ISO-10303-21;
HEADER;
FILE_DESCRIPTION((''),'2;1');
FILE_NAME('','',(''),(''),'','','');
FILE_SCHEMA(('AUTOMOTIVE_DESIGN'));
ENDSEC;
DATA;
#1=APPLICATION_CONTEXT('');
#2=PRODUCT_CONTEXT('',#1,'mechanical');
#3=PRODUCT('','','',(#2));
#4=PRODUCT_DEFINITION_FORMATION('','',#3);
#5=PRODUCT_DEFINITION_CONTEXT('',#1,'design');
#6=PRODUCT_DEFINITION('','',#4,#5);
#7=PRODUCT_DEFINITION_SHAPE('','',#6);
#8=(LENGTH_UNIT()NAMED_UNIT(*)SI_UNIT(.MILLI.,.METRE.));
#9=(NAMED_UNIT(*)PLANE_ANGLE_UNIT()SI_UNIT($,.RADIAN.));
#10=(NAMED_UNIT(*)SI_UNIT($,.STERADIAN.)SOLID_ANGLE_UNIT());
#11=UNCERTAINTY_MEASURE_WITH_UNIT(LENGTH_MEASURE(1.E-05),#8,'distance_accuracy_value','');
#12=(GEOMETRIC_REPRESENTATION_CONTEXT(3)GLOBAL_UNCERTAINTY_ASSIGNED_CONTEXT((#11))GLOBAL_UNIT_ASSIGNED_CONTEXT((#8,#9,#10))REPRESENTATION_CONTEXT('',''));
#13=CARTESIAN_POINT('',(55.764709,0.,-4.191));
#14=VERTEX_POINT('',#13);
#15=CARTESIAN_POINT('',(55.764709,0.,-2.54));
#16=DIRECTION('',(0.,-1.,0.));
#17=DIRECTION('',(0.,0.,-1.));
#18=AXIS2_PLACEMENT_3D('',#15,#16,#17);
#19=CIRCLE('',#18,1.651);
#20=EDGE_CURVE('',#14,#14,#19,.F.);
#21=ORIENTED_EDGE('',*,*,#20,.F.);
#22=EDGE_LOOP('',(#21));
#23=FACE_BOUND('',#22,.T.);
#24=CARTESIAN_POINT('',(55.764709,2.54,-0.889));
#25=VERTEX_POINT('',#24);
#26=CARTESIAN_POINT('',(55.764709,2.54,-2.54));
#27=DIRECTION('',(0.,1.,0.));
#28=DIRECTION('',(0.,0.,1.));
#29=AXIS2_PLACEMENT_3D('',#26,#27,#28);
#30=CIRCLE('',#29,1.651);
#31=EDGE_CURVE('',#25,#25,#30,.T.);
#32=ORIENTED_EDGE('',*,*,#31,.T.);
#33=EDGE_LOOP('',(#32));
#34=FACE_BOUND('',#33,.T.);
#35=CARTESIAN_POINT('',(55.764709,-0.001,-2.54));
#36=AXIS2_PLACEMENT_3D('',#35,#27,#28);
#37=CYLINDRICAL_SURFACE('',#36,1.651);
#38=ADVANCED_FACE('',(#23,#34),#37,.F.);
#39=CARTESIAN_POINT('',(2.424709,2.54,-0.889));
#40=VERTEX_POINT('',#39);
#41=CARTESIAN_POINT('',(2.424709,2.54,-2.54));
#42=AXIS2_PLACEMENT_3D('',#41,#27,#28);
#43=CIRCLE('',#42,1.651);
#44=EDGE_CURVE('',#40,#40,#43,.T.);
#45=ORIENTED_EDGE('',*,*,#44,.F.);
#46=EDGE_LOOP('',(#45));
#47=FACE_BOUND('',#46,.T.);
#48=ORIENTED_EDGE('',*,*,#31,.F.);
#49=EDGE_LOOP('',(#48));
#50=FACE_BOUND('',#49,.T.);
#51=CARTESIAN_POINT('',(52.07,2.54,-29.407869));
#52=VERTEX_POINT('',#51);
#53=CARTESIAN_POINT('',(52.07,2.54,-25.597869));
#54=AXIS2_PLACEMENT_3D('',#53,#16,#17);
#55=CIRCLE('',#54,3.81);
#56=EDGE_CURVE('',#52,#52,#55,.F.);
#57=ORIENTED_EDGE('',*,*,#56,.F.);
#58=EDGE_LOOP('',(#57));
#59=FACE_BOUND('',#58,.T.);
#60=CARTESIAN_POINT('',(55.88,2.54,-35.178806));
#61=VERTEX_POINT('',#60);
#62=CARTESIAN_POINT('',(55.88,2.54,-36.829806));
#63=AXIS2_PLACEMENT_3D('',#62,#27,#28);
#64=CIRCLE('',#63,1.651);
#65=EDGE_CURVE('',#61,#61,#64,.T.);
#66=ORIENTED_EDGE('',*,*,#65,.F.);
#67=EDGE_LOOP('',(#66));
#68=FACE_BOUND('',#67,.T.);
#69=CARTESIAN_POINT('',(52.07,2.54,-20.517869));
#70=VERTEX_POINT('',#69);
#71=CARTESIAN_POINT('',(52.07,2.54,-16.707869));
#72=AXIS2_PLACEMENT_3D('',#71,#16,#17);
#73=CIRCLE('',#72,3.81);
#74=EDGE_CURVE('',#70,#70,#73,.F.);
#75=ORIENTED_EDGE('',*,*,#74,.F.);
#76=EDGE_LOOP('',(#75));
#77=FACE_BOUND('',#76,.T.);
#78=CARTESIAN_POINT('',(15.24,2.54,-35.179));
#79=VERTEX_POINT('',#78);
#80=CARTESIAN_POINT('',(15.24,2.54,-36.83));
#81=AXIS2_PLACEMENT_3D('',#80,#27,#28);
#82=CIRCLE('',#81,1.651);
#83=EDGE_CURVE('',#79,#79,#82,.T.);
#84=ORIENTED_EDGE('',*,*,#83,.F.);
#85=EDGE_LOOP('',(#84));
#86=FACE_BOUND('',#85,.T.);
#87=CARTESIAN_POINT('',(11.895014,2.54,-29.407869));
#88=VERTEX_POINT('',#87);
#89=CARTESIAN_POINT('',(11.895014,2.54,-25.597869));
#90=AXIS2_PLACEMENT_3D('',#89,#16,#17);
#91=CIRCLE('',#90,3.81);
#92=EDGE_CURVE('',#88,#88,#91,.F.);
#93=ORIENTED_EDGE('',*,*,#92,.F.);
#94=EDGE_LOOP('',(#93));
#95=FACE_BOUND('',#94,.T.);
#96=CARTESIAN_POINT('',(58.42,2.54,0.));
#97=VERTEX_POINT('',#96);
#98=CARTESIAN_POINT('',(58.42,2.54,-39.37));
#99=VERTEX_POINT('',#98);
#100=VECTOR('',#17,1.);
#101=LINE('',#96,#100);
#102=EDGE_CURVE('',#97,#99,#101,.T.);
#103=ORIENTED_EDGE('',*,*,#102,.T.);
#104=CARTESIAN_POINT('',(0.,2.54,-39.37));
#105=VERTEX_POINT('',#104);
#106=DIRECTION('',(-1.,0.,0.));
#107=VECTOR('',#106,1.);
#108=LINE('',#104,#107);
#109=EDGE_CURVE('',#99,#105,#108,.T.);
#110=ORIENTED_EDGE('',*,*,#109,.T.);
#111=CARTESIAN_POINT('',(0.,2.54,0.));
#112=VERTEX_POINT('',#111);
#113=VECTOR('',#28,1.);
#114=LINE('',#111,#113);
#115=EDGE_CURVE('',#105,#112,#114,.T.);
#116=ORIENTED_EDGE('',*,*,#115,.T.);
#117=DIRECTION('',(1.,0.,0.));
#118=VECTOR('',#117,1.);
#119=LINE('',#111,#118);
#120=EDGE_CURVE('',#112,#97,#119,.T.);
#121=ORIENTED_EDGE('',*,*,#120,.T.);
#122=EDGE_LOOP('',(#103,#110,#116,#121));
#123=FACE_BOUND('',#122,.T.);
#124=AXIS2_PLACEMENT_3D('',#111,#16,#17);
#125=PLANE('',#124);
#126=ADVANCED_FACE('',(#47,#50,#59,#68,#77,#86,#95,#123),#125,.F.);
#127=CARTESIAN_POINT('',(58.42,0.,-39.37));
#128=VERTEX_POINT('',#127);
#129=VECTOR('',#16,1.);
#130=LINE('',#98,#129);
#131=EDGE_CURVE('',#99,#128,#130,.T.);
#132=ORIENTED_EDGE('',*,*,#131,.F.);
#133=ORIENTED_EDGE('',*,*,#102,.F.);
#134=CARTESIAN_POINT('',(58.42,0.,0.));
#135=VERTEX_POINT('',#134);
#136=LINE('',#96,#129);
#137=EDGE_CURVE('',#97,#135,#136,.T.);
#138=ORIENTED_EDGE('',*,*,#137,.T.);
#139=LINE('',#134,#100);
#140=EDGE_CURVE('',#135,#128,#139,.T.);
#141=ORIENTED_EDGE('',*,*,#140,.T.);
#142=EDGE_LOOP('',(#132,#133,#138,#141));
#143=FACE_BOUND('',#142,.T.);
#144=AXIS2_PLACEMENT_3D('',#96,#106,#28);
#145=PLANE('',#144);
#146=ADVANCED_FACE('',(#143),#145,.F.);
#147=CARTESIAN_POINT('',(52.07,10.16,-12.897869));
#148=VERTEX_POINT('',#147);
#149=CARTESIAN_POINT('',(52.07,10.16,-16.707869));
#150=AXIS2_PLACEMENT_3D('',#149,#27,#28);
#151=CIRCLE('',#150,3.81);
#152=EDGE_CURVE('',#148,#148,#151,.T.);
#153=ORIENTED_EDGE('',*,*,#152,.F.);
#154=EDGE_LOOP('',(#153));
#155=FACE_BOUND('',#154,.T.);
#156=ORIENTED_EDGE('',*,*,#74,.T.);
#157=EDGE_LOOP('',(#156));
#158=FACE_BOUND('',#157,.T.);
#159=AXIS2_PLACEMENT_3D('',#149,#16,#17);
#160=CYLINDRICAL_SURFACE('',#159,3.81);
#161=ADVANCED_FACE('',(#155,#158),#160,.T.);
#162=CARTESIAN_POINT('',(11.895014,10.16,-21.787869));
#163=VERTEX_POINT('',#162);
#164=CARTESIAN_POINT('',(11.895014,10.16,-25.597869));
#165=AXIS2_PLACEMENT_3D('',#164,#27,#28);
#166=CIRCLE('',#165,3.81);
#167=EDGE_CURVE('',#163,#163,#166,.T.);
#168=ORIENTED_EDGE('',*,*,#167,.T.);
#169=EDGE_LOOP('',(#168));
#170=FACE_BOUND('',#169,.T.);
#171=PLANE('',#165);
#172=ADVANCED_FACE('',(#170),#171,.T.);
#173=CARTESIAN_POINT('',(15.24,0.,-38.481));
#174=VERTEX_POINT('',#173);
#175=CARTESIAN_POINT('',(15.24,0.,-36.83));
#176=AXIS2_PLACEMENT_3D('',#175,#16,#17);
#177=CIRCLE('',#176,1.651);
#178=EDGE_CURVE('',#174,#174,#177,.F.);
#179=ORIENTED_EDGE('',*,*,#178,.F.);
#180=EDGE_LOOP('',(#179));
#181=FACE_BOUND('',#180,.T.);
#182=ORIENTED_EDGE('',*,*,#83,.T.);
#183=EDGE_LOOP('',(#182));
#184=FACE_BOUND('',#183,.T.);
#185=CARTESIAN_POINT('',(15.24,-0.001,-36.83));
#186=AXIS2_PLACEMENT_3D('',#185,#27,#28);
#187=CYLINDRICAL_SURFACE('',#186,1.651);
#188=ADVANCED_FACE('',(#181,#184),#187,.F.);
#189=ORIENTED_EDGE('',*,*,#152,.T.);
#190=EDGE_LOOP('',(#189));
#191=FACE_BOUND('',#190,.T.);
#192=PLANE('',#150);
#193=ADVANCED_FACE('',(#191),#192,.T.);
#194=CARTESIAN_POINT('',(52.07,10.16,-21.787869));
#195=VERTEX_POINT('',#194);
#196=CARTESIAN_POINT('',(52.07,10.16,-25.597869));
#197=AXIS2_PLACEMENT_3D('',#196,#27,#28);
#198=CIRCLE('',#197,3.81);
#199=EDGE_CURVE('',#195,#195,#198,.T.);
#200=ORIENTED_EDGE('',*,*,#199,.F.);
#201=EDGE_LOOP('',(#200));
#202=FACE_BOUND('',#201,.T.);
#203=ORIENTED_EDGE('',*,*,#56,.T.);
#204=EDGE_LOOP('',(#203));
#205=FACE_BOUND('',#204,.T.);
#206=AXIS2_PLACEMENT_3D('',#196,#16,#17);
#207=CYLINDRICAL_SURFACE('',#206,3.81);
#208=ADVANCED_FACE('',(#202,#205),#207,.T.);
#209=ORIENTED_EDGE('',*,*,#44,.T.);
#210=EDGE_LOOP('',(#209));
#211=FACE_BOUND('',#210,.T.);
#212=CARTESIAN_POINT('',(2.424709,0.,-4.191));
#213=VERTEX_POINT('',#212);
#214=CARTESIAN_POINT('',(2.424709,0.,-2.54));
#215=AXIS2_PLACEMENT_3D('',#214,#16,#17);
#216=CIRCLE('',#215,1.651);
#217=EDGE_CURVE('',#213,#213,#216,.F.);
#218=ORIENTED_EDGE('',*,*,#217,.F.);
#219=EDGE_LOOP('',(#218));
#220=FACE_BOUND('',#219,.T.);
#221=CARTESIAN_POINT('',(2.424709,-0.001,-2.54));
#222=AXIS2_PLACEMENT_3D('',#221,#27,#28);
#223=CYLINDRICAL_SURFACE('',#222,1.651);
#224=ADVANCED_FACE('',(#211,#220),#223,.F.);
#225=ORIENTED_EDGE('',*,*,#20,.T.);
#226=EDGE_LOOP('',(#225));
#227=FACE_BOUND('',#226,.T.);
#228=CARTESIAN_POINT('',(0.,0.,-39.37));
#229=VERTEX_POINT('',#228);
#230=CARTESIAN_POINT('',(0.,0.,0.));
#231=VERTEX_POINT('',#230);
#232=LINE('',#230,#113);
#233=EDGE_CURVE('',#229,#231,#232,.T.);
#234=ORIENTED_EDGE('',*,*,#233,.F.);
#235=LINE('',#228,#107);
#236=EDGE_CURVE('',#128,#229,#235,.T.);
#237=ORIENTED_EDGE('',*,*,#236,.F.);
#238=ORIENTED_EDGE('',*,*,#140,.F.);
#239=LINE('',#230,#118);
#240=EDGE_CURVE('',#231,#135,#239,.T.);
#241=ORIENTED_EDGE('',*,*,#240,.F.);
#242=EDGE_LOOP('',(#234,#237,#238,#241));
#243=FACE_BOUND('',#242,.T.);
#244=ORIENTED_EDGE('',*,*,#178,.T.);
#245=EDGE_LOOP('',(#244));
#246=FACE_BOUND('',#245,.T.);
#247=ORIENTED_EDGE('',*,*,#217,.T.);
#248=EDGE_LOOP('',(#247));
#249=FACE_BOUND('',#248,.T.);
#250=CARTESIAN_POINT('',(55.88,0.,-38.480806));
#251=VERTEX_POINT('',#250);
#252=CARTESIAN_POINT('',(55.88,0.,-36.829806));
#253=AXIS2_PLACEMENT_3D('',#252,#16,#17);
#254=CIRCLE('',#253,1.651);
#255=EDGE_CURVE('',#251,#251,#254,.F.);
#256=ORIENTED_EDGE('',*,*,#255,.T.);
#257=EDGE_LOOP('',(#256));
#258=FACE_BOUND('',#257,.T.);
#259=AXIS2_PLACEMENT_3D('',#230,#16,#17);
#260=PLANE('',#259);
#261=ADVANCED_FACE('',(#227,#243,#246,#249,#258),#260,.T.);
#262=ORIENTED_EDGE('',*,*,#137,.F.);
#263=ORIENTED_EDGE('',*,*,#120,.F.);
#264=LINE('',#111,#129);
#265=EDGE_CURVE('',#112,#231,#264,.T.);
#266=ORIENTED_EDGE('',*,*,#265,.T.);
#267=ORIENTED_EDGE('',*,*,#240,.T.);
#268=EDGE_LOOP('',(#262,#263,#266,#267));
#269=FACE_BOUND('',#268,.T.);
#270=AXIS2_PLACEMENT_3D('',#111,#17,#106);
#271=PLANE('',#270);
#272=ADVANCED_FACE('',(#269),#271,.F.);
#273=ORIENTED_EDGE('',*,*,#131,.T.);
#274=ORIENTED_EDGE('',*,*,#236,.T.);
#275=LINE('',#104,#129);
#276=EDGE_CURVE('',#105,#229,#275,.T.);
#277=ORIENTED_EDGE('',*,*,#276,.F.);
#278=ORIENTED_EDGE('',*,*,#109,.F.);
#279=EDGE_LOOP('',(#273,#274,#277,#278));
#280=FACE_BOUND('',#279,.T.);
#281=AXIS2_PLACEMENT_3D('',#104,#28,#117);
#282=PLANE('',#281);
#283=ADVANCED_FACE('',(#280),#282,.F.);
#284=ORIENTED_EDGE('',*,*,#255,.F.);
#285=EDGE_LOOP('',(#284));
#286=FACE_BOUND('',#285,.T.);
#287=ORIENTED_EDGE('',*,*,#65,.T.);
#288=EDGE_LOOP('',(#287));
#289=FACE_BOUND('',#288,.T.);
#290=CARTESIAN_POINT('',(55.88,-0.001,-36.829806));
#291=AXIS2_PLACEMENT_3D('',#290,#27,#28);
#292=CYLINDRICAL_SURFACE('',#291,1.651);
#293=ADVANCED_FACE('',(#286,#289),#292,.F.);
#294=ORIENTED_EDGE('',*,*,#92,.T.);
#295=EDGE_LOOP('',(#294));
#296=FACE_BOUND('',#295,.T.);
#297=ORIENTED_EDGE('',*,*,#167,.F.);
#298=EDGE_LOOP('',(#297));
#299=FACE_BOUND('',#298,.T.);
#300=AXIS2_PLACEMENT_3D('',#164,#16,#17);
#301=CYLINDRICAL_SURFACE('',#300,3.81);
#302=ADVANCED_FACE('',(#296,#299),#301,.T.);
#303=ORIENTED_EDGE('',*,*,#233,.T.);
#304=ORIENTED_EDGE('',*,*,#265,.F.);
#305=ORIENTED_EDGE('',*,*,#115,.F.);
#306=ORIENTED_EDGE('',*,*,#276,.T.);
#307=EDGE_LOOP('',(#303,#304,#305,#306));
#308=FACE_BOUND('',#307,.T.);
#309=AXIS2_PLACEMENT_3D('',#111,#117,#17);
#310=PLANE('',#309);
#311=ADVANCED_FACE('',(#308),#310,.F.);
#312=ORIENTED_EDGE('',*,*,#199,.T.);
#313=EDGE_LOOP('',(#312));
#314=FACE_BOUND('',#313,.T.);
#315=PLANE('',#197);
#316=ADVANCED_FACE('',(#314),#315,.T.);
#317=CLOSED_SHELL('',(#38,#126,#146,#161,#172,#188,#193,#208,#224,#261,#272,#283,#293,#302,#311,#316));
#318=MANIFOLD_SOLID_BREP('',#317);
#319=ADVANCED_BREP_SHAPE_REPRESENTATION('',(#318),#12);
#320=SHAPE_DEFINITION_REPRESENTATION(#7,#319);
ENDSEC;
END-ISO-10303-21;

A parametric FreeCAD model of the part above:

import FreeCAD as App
import Part
import Sketcher
from FreeCAD import Vector
Q = App.Units.Quantity


def add_polygon(sketch, points):
    """Adds a closed chain of lines whose ends are joined by coincident constraints."""
    first, n = sketch.GeometryCount, len(points)
    for a, b in zip(points, points[1:] + points[:1]):
        sketch.addGeometry(Part.LineSegment(App.Vector(*a, 0), App.Vector(*b, 0)), False)
    for i in range(n):
        sketch.addConstraint(Sketcher.Constraint("Coincident", first + i, 2, first + (i + 1) % n, 1))

doc = App.newDocument("Part")
body = doc.addObject("PartDesign::Body", "Body")

# Sketch on XZ plane
sketch1 = body.newObject("Sketcher::SketchObject", "Sketch")
sketch1.AttachmentSupport = (doc.getObject("XZ_Plane"), [""])
sketch1.MapMode = "FlatFace"
add_polygon(sketch1, [(0, -39.37), (0, 0), (58.42, 0), (58.42, -39.37)])  # lines 0-3
sketch1.addConstraint(Sketcher.Constraint("Vertical", 0))
sketch1.addConstraint(Sketcher.Constraint("Horizontal", 1))
sketch1.addConstraint(Sketcher.Constraint("Vertical", 2))
sketch1.addConstraint(Sketcher.Constraint("Horizontal", 3))
sketch1.addConstraint(Sketcher.Constraint("Coincident", 0, 2, -1, 1))
sketch1.addConstraint(Sketcher.Constraint("DistanceX", 1, 1, 1, 2, Q("2.3 in")))
sketch1.addConstraint(Sketcher.Constraint("DistanceY", 0, 1, 0, 2, Q("1.55 in")))
pad1 = body.newObject("PartDesign::Pad", "Pad")
pad1.Profile = sketch1
pad1.Length = Q("0.1 in")
pad1.Reversed = True

# Sketch on XZ plane
sketch2 = body.newObject("Sketcher::SketchObject", "Sketch001")
sketch2.AttachmentSupport = (doc.getObject("XZ_Plane"), [""])
sketch2.MapMode = "FlatFace"
sketch2.AttachmentOffset = App.Placement(Vector(0, 0, -0.1 * 25.4), App.Rotation())
sketch2.addGeometry(Part.Circle(Vector(2.424709, -2.54, 0), Vector(0, 0, 1), 1.651), False)
sketch2.addConstraint(Sketcher.Constraint("Diameter", 0, Q("0.13 in")))
sketch2.addConstraint(Sketcher.Constraint("DistanceY", 0, 3, -1, 1, Q("0.1 in")))
sketch2.addConstraint(Sketcher.Constraint("DistanceX", -1, 1, 0, 3, 2.424709))
pocket1 = body.newObject("PartDesign::Pocket", "Pocket")
pocket1.Profile = sketch2
pocket1.Type = "UpToFirst"
pocket1.Reversed = True

# Sketch on XZ plane
sketch3 = body.newObject("Sketcher::SketchObject", "Sketch002")
sketch3.AttachmentSupport = (doc.getObject("XZ_Plane"), [""])
sketch3.MapMode = "FlatFace"
sketch3.AttachmentOffset = App.Placement(Vector(0, 0, -0.1 * 25.4), App.Rotation())
sketch3.addGeometry(Part.Circle(Vector(55.764709, -2.54, 0), Vector(0, 0, 1), 1.651), False)
sketch3.addConstraint(Sketcher.Constraint("Diameter", 0, Q("0.13 in")))
sketch3.addConstraint(Sketcher.Constraint("DistanceY", 0, 3, -1, 1, Q("0.1 in")))
sketch3.addConstraint(Sketcher.Constraint("DistanceX", -1, 1, 0, 3, 55.764709))
pocket2 = body.newObject("PartDesign::Pocket", "Pocket001")
pocket2.Profile = sketch3
pocket2.Type = "UpToFirst"
pocket2.Reversed = True

# Sketch on XZ plane
sketch4 = body.newObject("Sketcher::SketchObject", "Sketch003")
sketch4.AttachmentSupport = (doc.getObject("XZ_Plane"), [""])
sketch4.MapMode = "FlatFace"
sketch4.AttachmentOffset = App.Placement(Vector(0, 0, -0.1 * 25.4), App.Rotation())
sketch4.addGeometry(Part.Circle(Vector(15.24, -36.83, 0), Vector(0, 0, 1), 1.651), False)
sketch4.addConstraint(Sketcher.Constraint("Diameter", 0, Q("0.13 in")))
sketch4.addConstraint(Sketcher.Constraint("DistanceX", -1, 1, 0, 3, Q("0.6 in")))
sketch4.addConstraint(Sketcher.Constraint("DistanceY", 0, 3, -1, 1, Q("1.45 in")))
pocket3 = body.newObject("PartDesign::Pocket", "Pocket002")
pocket3.Profile = sketch4
pocket3.Type = "UpToFirst"
pocket3.Reversed = True

# Sketch on XZ plane
sketch5 = body.newObject("Sketcher::SketchObject", "Sketch004")
sketch5.AttachmentSupport = (doc.getObject("XZ_Plane"), [""])
sketch5.MapMode = "FlatFace"
sketch5.AttachmentOffset = App.Placement(Vector(0, 0, -0.1 * 25.4), App.Rotation())
sketch5.addGeometry(Part.Circle(Vector(55.88, -36.829806, 0), Vector(0, 0, 1), 1.651), False)
sketch5.addConstraint(Sketcher.Constraint("Diameter", 0, Q("0.13 in")))
sketch5.addConstraint(Sketcher.Constraint("DistanceX", -1, 1, 0, 3, Q("2.2 in")))
sketch5.addConstraint(Sketcher.Constraint("DistanceY", 0, 3, -1, 1, 36.829806))
pocket4 = body.newObject("PartDesign::Pocket", "Pocket003")
pocket4.Profile = sketch5
pocket4.Type = "UpToFirst"
pocket4.Reversed = True

# Sketch on XZ plane
sketch6 = body.newObject("Sketcher::SketchObject", "Sketch005")
sketch6.AttachmentSupport = (doc.getObject("XZ_Plane"), [""])
sketch6.MapMode = "FlatFace"
sketch6.AttachmentOffset = App.Placement(Vector(0, 0, -0.1 * 25.4), App.Rotation())
sketch6.addGeometry(Part.Circle(Vector(52.07, -25.597869, 0), Vector(0, 0, 1), 3.81), False)
sketch6.addGeometry(Part.Circle(Vector(52.07, -16.707869, 0), Vector(0, 0, 1), 3.81), False)
sketch6.addGeometry(Part.Circle(Vector(11.895014, -25.597869, 0), Vector(0, 0, 1), 3.81), False)
sketch6.addConstraint(Sketcher.Constraint("Equal", 0, 1))
sketch6.addConstraint(Sketcher.Constraint("Equal", 1, 2))
sketch6.addConstraint(Sketcher.Constraint("Horizontal", 0, 3, 2, 3))
sketch6.addConstraint(Sketcher.Constraint("Vertical", 0, 3, 1, 3))
sketch6.addConstraint(Sketcher.Constraint("Diameter", 0, Q("0.3 in")))
sketch6.addConstraint(Sketcher.Constraint("DistanceX", -1, 1, 0, 3, Q("2.05 in")))
sketch6.addConstraint(Sketcher.Constraint("DistanceY", 0, 3, 1, 3, Q("0.35 in")))
sketch6.addConstraint(Sketcher.Constraint("DistanceY", 0, 3, -1, 1, 25.597869))
sketch6.addConstraint(Sketcher.Constraint("DistanceX", -1, 1, 2, 3, 11.895014))
pad2 = body.newObject("PartDesign::Pad", "Pad001")
pad2.Profile = sketch6
pad2.Length = Q("0.3 in")
pad2.Reversed = True

doc.recompute()
